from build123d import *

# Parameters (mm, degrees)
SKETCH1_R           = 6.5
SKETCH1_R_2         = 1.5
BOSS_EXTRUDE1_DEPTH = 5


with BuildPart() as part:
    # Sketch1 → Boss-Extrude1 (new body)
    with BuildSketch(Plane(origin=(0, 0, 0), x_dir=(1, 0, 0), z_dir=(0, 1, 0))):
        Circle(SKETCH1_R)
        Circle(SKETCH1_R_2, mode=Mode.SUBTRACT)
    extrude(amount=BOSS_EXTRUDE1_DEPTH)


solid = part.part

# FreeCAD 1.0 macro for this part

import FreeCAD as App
import Part
import Sketcher
Q = App.Units.Quantity

doc = App.newDocument("Part")
params = doc.addObject("Spreadsheet::Sheet", "Params")
for row, (alias, value) in enumerate([
    ("sketch1_diameter", "13 mm"),
    ("sketch1_diameter2", "3 mm"),
    ("pad1_length", "5 mm"),
], start=1):
    params.set(f"A{row}", alias)
    params.set(f"B{row}", "=" + value)
    params.setAlias(f"B{row}", alias)

body = doc.addObject("PartDesign::Body", "Body")

sketch1 = doc.addObject("Sketcher::SketchObject", "Sketch")
body.addObject(sketch1)
sketch1.AttachmentSupport = (doc.XZ_Plane, [""])
sketch1.MapMode = "FlatFace"
sketch1.addGeometry(Part.Circle(App.Vector(0, 0, 0), App.Vector(0, 0, 1), 6.5), False)
sketch1.addGeometry(Part.Circle(App.Vector(0, 0, 0), App.Vector(0, 0, 1), 1.5), False)
sketch1.addConstraint(Sketcher.Constraint("Coincident", 0, 3, -1, 1))
sketch1.addConstraint(Sketcher.Constraint("Coincident", 1, 3, -1, 1))
sketch1.addConstraint(Sketcher.Constraint("Diameter", 0, Q("13 mm")))
sketch1.addConstraint(Sketcher.Constraint("Diameter", 1, Q("3 mm")))
sketch1.setExpression("Constraints[2]", "Params.sketch1_diameter")
sketch1.setExpression("Constraints[3]", "Params.sketch1_diameter2")
pad1 = doc.addObject("PartDesign::Pad", "Pad")
body.addObject(pad1)
pad1.Profile = sketch1
pad1.setExpression("Length", "Params.pad1_length")
pad1.Reversed = True

doc.recompute()
